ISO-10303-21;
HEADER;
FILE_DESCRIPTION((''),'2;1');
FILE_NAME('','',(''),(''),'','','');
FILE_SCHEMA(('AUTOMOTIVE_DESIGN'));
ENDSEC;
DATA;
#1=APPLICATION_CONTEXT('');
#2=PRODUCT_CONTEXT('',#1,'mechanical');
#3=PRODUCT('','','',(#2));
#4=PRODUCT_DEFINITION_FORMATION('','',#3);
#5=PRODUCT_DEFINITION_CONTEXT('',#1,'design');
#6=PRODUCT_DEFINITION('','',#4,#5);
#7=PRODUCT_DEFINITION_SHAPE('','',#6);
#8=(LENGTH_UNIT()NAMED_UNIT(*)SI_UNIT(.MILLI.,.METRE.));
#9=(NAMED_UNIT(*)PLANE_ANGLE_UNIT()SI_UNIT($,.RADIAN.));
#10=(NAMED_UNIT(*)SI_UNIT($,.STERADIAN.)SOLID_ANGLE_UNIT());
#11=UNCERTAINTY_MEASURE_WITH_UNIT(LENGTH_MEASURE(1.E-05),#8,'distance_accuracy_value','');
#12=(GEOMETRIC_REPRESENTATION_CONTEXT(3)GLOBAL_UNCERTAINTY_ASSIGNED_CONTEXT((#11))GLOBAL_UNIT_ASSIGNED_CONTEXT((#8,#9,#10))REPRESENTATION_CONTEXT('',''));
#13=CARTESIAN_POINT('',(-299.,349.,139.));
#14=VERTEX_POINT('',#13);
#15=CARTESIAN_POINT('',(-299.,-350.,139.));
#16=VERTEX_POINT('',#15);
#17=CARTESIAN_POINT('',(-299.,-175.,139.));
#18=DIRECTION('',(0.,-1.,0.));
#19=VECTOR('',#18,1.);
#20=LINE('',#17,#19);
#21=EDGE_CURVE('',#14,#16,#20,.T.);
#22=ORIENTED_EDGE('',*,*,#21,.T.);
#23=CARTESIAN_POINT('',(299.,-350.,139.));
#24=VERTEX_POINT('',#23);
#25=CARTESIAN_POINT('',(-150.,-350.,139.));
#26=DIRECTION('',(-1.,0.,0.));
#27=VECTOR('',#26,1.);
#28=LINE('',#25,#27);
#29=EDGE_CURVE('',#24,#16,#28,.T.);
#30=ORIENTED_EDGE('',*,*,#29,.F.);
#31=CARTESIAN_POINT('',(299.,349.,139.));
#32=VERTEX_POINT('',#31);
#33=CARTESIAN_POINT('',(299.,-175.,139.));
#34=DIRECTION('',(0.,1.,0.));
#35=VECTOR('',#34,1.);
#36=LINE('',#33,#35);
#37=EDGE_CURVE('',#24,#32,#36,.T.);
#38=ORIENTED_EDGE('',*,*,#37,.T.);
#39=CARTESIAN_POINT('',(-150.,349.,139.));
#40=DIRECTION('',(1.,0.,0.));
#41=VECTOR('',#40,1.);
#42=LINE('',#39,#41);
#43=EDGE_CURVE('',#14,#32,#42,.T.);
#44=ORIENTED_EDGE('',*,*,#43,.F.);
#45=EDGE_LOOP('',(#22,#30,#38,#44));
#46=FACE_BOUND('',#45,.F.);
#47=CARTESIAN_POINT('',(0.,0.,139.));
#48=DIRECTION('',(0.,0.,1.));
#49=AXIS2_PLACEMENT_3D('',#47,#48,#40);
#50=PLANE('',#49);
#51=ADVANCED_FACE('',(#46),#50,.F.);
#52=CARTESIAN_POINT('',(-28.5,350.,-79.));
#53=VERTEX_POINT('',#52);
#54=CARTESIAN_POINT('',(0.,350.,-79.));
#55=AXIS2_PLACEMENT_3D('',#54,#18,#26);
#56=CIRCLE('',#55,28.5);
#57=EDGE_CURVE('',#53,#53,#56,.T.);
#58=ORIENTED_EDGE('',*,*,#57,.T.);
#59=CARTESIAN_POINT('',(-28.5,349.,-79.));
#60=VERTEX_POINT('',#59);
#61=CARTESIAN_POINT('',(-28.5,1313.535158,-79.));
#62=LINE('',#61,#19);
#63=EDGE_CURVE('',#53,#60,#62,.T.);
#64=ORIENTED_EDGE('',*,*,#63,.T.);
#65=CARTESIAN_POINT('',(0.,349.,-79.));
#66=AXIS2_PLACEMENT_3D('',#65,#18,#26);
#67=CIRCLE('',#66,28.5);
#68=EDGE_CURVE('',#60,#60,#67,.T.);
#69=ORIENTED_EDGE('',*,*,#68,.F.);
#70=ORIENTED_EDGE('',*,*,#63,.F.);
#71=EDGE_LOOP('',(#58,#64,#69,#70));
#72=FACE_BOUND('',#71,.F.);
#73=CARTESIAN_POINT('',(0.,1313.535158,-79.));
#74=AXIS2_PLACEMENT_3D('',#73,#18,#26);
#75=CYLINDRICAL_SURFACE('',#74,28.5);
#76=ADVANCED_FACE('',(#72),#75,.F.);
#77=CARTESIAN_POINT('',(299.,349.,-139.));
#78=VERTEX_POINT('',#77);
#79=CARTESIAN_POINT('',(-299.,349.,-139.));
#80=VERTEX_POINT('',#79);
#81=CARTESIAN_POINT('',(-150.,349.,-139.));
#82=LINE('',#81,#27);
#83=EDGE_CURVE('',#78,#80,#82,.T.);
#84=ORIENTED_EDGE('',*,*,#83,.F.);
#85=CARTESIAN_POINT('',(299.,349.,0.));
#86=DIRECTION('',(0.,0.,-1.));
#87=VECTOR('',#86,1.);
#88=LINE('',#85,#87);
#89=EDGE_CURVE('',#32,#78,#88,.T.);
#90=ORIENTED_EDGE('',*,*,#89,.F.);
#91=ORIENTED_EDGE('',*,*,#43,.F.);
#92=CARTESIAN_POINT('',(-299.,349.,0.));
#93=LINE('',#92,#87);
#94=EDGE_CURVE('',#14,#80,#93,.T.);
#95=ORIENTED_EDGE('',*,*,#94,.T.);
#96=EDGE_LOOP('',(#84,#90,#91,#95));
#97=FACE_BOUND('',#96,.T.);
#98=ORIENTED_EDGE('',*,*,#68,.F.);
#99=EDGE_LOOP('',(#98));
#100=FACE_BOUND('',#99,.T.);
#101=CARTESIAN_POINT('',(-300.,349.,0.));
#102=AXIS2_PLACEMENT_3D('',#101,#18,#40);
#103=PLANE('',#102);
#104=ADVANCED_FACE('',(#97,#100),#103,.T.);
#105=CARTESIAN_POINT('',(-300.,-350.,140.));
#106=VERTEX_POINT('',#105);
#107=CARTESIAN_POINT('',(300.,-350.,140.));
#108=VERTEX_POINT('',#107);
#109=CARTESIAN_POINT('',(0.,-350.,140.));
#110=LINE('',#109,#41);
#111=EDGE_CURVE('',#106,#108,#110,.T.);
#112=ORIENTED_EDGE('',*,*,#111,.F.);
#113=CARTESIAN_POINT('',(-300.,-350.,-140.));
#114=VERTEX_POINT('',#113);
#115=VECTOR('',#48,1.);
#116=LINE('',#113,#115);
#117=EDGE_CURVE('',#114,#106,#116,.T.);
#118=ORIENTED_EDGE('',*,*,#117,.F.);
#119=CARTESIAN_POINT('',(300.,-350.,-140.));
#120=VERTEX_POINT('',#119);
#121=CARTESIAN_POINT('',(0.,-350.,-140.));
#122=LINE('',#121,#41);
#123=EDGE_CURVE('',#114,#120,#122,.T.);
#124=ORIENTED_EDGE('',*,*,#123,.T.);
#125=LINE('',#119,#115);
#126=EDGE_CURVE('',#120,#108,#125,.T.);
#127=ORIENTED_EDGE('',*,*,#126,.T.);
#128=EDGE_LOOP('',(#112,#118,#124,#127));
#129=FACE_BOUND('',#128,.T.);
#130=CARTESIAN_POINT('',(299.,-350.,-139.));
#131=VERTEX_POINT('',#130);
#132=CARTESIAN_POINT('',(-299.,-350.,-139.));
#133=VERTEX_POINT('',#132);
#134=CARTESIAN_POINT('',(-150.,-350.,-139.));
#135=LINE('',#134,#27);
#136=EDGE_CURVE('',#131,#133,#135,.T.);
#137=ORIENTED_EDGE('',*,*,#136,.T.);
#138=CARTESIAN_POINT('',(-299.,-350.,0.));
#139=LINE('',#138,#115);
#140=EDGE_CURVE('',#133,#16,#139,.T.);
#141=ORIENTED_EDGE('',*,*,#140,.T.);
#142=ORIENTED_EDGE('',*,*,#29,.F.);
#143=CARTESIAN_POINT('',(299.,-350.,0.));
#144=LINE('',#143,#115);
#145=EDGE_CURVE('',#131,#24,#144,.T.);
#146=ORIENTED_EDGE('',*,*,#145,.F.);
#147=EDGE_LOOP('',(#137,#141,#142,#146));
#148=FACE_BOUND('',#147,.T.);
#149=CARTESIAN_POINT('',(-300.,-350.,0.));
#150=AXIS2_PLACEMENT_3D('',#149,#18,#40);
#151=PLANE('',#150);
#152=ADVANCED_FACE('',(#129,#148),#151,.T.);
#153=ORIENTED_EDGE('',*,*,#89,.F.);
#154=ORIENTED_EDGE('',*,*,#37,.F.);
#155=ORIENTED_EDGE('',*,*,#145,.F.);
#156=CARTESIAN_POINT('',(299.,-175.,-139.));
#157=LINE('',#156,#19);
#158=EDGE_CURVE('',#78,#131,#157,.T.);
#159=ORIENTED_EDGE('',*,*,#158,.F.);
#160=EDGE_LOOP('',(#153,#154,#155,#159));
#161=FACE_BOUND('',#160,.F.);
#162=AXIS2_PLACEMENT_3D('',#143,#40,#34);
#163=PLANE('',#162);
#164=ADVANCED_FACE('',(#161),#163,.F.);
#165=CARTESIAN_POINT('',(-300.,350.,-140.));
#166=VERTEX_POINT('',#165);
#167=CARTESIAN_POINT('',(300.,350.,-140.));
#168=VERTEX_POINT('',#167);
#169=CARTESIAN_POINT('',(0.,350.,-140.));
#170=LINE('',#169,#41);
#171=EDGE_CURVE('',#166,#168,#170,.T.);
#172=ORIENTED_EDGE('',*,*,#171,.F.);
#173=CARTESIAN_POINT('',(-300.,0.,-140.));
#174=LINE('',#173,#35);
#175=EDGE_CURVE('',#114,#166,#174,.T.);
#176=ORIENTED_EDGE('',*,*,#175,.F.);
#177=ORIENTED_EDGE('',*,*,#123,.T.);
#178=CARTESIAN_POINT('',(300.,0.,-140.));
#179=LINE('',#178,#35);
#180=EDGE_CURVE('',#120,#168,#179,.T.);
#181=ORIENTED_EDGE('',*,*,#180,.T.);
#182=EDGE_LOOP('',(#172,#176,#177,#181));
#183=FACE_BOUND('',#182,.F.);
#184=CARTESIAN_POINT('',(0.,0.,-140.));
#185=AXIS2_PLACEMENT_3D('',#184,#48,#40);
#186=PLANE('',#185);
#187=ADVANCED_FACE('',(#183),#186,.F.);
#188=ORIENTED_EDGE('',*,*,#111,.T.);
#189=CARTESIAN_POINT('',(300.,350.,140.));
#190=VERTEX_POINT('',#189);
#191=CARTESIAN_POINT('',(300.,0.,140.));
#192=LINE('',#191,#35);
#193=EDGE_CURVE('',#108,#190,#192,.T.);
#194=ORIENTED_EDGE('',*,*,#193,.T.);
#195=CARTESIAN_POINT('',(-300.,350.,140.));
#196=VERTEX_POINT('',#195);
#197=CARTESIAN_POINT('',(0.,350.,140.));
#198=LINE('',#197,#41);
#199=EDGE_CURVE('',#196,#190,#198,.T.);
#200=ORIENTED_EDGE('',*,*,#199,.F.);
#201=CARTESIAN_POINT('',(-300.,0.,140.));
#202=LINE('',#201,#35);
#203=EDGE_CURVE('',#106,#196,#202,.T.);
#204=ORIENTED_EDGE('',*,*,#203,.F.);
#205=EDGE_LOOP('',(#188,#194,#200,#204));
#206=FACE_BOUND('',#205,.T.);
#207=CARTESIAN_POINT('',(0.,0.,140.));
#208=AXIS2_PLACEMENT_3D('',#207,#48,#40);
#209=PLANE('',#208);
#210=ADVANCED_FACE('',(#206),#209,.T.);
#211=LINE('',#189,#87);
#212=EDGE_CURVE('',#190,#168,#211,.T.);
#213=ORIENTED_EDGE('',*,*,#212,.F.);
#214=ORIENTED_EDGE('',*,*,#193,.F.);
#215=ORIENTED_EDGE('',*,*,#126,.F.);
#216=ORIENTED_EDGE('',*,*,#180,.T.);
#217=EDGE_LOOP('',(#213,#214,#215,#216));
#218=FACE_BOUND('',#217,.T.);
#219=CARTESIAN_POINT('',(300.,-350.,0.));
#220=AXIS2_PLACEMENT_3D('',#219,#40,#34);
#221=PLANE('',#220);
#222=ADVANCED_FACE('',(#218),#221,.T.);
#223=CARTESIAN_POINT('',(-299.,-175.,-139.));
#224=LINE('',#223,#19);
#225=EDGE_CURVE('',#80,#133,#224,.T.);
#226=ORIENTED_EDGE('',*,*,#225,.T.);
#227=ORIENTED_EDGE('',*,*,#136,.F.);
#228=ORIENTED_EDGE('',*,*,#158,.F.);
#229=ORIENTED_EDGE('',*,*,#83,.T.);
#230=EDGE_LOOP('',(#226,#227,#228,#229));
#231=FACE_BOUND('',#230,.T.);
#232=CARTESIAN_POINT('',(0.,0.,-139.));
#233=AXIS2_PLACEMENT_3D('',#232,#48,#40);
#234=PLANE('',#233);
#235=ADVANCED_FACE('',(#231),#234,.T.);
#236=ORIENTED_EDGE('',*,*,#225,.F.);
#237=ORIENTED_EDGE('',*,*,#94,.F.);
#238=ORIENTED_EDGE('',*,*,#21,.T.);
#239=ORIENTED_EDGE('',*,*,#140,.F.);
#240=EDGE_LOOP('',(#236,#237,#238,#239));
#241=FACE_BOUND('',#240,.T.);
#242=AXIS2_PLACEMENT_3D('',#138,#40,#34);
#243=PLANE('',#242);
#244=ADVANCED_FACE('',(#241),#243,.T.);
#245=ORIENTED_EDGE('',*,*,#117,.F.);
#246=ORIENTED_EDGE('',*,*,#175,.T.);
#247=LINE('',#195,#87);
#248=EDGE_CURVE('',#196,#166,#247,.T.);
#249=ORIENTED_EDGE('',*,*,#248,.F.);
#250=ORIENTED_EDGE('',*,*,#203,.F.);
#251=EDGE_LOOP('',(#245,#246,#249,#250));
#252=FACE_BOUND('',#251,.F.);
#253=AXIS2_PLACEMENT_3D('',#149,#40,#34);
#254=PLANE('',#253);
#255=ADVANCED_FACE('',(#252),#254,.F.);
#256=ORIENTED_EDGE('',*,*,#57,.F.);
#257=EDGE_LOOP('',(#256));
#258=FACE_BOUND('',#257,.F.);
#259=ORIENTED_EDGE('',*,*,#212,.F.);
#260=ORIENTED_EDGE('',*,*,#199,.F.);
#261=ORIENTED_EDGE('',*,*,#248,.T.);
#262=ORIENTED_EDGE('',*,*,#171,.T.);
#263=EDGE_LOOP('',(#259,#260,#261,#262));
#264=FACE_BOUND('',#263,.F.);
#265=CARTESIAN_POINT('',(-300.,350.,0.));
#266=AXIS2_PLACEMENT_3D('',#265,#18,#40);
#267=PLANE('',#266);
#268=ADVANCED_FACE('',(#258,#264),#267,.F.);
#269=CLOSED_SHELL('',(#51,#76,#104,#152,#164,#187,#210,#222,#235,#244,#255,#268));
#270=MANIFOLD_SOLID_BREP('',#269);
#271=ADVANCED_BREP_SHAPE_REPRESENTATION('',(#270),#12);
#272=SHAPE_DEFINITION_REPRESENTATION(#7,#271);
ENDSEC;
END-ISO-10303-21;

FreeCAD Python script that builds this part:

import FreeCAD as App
import Part
import Sketcher


def faces_at(feature, points):
    """Names of the faces that lie closest to the given points."""
    faces = feature.Shape.Faces
    near = lambda p: min(range(len(faces)), key=lambda i: faces[i].distToShape(Part.Vertex(*p))[0])
    return sorted({f"Face{near(p) + 1}" for p in points})


def add_polygon(sketch, points):
    """Adds a closed chain of lines whose ends are joined by coincident constraints."""
    first, n = sketch.GeometryCount, len(points)
    for a, b in zip(points, points[1:] + points[:1]):
        sketch.addGeometry(Part.LineSegment(App.Vector(*a, 0), App.Vector(*b, 0)), False)
    for i in range(n):
        sketch.addConstraint(Sketcher.Constraint("Coincident", first + i, 2, first + (i + 1) % n, 1))

doc = App.newDocument("Part")
body = doc.addObject("PartDesign::Body", "Body")

# Sketch on XY plane
sketch1 = body.newObject("Sketcher::SketchObject", "Sketch")
sketch1.AttachmentSupport = (doc.getObject("XY_Plane"), [""])
sketch1.MapMode = "FlatFace"
add_polygon(sketch1, [(-300, 350), (-300, -350), (300, -350), (300, 350)])  # lines 0-3
sketch1.addConstraint([
    Sketcher.Constraint("Vertical", 0),
    Sketcher.Constraint("Horizontal", 1),
    Sketcher.Constraint("Vertical", 2),
    Sketcher.Constraint("Horizontal", 3),
    Sketcher.Constraint("Symmetric", 0, 2, 2, 2, -1, 1),
    Sketcher.Constraint("DistanceX", 1, 1, 1, 2, 600.0),
    Sketcher.Constraint("DistanceY", 0, 2, 0, 1, 700.0),
])
pad1 = body.newObject("PartDesign::Pad", "Pad")
pad1.Profile = sketch1
pad1.Length = 280
pad1.Midplane = True
doc.recompute()

thickness = body.newObject("PartDesign::Thickness", "Thickness")
thickness.Base = (pad1, faces_at(pad1, [(0, -350, 0)]))
thickness.Value = 1
thickness.Reversed = True
thickness.Join = "Intersection"

# Sketch on XZ plane
sketch2 = body.newObject("Sketcher::SketchObject", "Sketch001")
sketch2.AttachmentSupport = (doc.getObject("XZ_Plane"), [""])
sketch2.MapMode = "FlatFace"
sketch2.AttachmentOffset = App.Placement(App.Vector(0, 0, -350), App.Rotation())
sketch2.addGeometry(Part.Circle(App.Vector(0, -79, 0), App.Vector(0, 0, 1), 28), False)
sketch2.addConstraint([
    Sketcher.Constraint("PointOnObject", 0, 3, -2),
    Sketcher.Constraint("Diameter", 0, 57.0),
    Sketcher.Constraint("DistanceY", 0, 3, -1, 1, 79.0),
])
doc.recompute()
hole = body.newObject("PartDesign::Hole", "Hole")
hole.Profile = sketch2
hole.ThreadType = "None"
hole.Diameter = 57
hole.DepthType = "ThroughAll"
hole.Reversed = True

doc.recompute()
